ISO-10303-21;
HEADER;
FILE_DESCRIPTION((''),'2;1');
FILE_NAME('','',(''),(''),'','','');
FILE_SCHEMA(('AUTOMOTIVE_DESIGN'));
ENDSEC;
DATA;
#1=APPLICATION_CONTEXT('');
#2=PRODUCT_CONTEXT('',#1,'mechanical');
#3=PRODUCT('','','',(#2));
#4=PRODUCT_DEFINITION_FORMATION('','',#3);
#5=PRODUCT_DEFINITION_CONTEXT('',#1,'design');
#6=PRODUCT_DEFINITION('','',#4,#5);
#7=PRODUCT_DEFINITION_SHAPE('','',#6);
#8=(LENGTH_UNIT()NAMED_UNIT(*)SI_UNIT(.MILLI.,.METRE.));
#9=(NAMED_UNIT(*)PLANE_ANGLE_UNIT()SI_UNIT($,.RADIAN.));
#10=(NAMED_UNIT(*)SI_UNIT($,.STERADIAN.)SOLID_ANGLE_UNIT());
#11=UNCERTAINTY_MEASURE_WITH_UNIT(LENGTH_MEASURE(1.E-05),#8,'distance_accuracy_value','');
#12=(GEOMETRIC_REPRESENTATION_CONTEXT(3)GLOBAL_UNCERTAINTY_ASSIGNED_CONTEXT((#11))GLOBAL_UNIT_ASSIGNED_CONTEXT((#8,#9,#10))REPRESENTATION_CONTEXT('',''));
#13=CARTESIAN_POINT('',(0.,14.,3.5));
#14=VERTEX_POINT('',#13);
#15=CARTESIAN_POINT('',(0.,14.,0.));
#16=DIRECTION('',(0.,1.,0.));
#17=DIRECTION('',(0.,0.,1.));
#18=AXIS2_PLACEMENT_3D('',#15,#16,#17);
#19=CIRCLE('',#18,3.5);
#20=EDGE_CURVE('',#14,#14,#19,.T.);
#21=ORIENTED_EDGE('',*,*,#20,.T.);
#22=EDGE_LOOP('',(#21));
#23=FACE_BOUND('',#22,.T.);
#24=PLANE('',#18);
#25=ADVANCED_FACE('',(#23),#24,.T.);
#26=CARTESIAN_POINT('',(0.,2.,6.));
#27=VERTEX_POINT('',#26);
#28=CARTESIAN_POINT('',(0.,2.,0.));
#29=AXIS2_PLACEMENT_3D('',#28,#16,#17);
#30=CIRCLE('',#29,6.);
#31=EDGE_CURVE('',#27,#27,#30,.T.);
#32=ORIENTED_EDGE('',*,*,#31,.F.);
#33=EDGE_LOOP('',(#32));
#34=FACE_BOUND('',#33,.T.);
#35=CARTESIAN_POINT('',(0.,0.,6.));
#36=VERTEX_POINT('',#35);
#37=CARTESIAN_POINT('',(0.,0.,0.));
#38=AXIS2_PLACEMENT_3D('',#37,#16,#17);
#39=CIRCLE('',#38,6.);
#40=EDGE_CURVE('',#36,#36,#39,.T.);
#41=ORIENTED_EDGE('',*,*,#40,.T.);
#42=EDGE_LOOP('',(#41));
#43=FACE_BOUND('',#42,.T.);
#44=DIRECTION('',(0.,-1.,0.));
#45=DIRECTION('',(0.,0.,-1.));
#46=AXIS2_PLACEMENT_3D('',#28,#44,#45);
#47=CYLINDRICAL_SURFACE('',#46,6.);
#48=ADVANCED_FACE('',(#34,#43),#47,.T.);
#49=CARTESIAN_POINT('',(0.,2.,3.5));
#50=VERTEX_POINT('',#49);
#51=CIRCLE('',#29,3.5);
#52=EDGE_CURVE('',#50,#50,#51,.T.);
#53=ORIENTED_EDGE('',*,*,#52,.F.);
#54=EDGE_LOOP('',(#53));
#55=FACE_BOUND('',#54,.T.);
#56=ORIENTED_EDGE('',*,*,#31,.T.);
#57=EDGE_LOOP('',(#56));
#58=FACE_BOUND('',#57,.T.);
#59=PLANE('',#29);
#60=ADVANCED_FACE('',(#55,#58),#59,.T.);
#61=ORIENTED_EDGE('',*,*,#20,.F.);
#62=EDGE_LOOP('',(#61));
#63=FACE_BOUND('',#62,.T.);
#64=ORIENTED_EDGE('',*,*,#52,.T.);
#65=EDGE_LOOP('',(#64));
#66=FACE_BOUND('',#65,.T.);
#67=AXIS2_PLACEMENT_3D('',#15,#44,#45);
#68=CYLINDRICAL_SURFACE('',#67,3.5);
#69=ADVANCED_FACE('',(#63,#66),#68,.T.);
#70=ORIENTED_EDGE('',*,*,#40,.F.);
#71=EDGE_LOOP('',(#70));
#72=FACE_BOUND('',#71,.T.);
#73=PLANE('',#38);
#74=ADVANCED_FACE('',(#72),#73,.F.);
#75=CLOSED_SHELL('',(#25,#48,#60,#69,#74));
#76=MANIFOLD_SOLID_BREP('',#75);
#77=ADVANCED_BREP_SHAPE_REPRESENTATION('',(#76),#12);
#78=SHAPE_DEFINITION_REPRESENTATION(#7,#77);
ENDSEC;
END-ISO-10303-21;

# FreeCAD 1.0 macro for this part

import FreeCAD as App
import Part
import Sketcher

V = App.Vector

doc = App.newDocument("Part")
params = doc.addObject("Spreadsheet::Sheet", "Params")
for row, (alias, value) in enumerate([
    ("sketch1_diameter", "12 mm"),
    ("pad1_length", "2 mm"),
    ("sketch2_diameter", "7 mm"),
    ("pad2_length", "12 mm"),
], start=1):
    params.set(f"A{row}", alias)
    params.set(f"B{row}", "=" + value)
    params.setAlias(f"B{row}", alias)

body = doc.addObject("PartDesign::Body", "Body")

sketch1 = body.newObject("Sketcher::SketchObject", "Sketch")
sketch1.AttachmentSupport = (doc.getObject("XZ_Plane"), [""])
sketch1.MapMode = "FlatFace"
sketch1.addGeometry(Part.Circle(V(0, 0, 0), V(0, 0, 1), 6), False)
sketch1.addConstraint([
    Sketcher.Constraint("Coincident", 0, 3, -1, 1),
    Sketcher.Constraint("Diameter", 0, 12.0),
])
sketch1.setExpression("Constraints[1]", "Params.sketch1_diameter")
pad1 = body.newObject("PartDesign::Pad", "Pad")
pad1.Profile = sketch1
pad1.setExpression("Length", "Params.pad1_length")
pad1.Reversed = True

sketch2 = body.newObject("Sketcher::SketchObject", "Sketch001")
sketch2.AttachmentSupport = (doc.getObject("XZ_Plane"), [""])
sketch2.MapMode = "FlatFace"
sketch2.AttachmentOffset = App.Placement(V(0, 0, -2), App.Rotation())
sketch2.addGeometry(Part.Circle(V(0, 0, 0), V(0, 0, 1), 3.5), False)
sketch2.addConstraint([
    Sketcher.Constraint("Coincident", 0, 3, -1, 1),
    Sketcher.Constraint("Diameter", 0, 7.0),
])
sketch2.setExpression("Constraints[1]", "Params.sketch2_diameter")
pad2 = body.newObject("PartDesign::Pad", "Pad001")
pad2.Profile = sketch2
pad2.setExpression("Length", "Params.pad2_length")
pad2.Reversed = True

doc.recompute()
